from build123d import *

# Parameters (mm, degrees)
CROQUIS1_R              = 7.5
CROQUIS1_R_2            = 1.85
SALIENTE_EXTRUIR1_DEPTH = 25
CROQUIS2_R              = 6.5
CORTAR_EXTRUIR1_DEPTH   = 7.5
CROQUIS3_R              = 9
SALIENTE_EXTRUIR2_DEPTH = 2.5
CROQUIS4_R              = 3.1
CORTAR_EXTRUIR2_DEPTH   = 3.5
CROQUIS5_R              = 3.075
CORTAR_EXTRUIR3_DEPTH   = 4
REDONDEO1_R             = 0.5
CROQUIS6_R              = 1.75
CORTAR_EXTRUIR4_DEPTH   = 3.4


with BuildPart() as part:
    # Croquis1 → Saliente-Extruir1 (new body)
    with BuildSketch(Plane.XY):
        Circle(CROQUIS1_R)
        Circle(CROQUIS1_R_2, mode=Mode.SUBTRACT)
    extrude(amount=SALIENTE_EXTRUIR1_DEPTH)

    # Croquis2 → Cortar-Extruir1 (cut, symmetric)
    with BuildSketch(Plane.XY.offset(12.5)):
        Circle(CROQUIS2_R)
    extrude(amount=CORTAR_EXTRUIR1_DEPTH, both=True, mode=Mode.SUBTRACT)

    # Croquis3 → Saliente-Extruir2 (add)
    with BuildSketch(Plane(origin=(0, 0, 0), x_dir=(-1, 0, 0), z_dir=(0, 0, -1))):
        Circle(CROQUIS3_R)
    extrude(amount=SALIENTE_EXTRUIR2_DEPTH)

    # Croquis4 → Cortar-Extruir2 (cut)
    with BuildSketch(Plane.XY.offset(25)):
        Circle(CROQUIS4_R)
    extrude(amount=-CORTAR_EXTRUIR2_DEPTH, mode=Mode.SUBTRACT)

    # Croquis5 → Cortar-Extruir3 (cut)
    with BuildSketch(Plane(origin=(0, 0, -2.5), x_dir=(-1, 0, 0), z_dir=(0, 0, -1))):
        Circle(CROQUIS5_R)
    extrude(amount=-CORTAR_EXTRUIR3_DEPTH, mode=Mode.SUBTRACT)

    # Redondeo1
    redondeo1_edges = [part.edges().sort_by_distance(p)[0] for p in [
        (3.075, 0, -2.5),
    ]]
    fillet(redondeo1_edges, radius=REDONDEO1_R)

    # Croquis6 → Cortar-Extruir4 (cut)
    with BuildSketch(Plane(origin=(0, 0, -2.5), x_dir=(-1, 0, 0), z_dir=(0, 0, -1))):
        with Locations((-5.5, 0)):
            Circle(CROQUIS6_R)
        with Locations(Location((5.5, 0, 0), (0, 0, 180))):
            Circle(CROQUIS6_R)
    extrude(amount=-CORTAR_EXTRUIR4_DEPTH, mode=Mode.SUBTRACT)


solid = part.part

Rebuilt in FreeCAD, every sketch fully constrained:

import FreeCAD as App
import Part
import Sketcher
from FreeCAD import Vector
Q = App.Units.Quantity


def edges_at(feature, points):
    """Names of the edges that pass closest to the given points."""
    edges = feature.Shape.Edges
    near = lambda p: min(range(len(edges)), key=lambda i: edges[i].distToShape(Part.Vertex(*p))[0])
    return sorted({f"Edge{near(p) + 1}" for p in points})

doc = App.newDocument("Part")
params = doc.addObject("Spreadsheet::Sheet", "Params")
for row, (alias, value) in enumerate([
    ("sketch1_diameter", "15 mm"),
    ("sketch1_diameter2", "3.7 mm"),
    ("pad1_length", "25 mm"),
    ("sketch2_diameter", "13 mm"),
    ("pocket1_length", "15 mm"),
    ("sketch3_diameter", "18 mm"),
    ("pad2_length", "2.5 mm"),
    ("sketch4_diameter", "6.2 mm"),
    ("pocket2_length", "3.5 mm"),
    ("sketch5_diameter", "6.15 mm"),
    ("pocket3_length", "4 mm"),
    ("fillet_radius", "0.5 mm"),
    ("sketch6_diameter", "3.5 mm"),
    ("pocket4_length", "3.4 mm"),
], start=1):
    params.set(f"A{row}", alias)
    params.set(f"B{row}", "=" + value)
    params.setAlias(f"B{row}", alias)

body = doc.addObject("PartDesign::Body", "Body")

# Sketch on XY plane
sketch1 = body.newObject("Sketcher::SketchObject", "Sketch")
sketch1.AttachmentSupport = (doc.getObject("XY_Plane"), [""])
sketch1.MapMode = "FlatFace"
sketch1.addGeometry([
    Part.Circle(Vector(0, 0, 0), Vector(0, 0, 1), 7.5),
    Part.Circle(Vector(0, 0, 0), Vector(0, 0, 1), 1.9),
], False)
sketch1.addConstraint([
    Sketcher.Constraint("Coincident", 0, 3, -1, 1),
    Sketcher.Constraint("Coincident", 1, 3, -1, 1),
    Sketcher.Constraint("Diameter", 0, Q("15 mm")),
    Sketcher.Constraint("Diameter", 1, Q("3.7 mm")),
])
sketch1.setExpression("Constraints[2]", "Params.sketch1_diameter")
sketch1.setExpression("Constraints[3]", "Params.sketch1_diameter2")
pad1 = body.newObject("PartDesign::Pad", "Pad")
pad1.Profile = sketch1
pad1.setExpression("Length", "Params.pad1_length")

# Sketch on XY plane
sketch2 = body.newObject("Sketcher::SketchObject", "Sketch001")
sketch2.AttachmentSupport = (doc.getObject("XY_Plane"), [""])
sketch2.MapMode = "FlatFace"
sketch2.AttachmentOffset = App.Placement(Vector(0, 0, 12.5), App.Rotation())
sketch2.addGeometry(Part.Circle(Vector(0, 0, 0), Vector(0, 0, 1), 6), False)
sketch2.addConstraint([
    Sketcher.Constraint("Coincident", 0, 3, -1, 1),
    Sketcher.Constraint("Diameter", 0, Q("13 mm")),
])
sketch2.setExpression("Constraints[1]", "Params.sketch2_diameter")
pocket1 = body.newObject("PartDesign::Pocket", "Pocket")
pocket1.Profile = sketch2
pocket1.setExpression("Length", "Params.pocket1_length")
pocket1.Midplane = True

# Sketch on XY plane
sketch3 = body.newObject("Sketcher::SketchObject", "Sketch002")
sketch3.AttachmentSupport = (doc.getObject("XY_Plane"), [""])
sketch3.MapMode = "FlatFace"
sketch3.addGeometry(Part.Circle(Vector(0, 0, 0), Vector(0, 0, 1), 9), False)
sketch3.addConstraint([
    Sketcher.Constraint("Coincident", 0, 3, -1, 1),
    Sketcher.Constraint("Diameter", 0, Q("18 mm")),
])
sketch3.setExpression("Constraints[1]", "Params.sketch3_diameter")
pad2 = body.newObject("PartDesign::Pad", "Pad001")
pad2.Profile = sketch3
pad2.setExpression("Length", "Params.pad2_length")
pad2.Reversed = True

# Sketch on XY plane
sketch4 = body.newObject("Sketcher::SketchObject", "Sketch003")
sketch4.AttachmentSupport = (doc.getObject("XY_Plane"), [""])
sketch4.MapMode = "FlatFace"
sketch4.AttachmentOffset = App.Placement(Vector(0, 0, 25), App.Rotation())
sketch4.addGeometry(Part.Circle(Vector(0, 0, 0), Vector(0, 0, 1), 3.1), False)
sketch4.addConstraint([
    Sketcher.Constraint("Coincident", 0, 3, -1, 1),
    Sketcher.Constraint("Diameter", 0, Q("6.2 mm")),
])
sketch4.setExpression("Constraints[1]", "Params.sketch4_diameter")
pocket2 = body.newObject("PartDesign::Pocket", "Pocket001")
pocket2.Profile = sketch4
pocket2.setExpression("Length", "Params.pocket2_length")

# Sketch on XY plane
sketch5 = body.newObject("Sketcher::SketchObject", "Sketch004")
sketch5.AttachmentSupport = (doc.getObject("XY_Plane"), [""])
sketch5.MapMode = "FlatFace"
sketch5.AttachmentOffset = App.Placement(Vector(0, 0, -2.5), App.Rotation())
sketch5.addGeometry(Part.Circle(Vector(0, 0, 0), Vector(0, 0, 1), 3.1), False)
sketch5.addConstraint([
    Sketcher.Constraint("Coincident", 0, 3, -1, 1),
    Sketcher.Constraint("Diameter", 0, Q("6.15 mm")),
])
sketch5.setExpression("Constraints[1]", "Params.sketch5_diameter")
pocket3 = body.newObject("PartDesign::Pocket", "Pocket002")
pocket3.Profile = sketch5
pocket3.setExpression("Length", "Params.pocket3_length")
pocket3.Reversed = True
doc.recompute()

fillet = body.newObject("PartDesign::Fillet", "Fillet")
fillet.Base = (pocket3, edges_at(pocket3, [(3.075, 0, -2.5)]))
fillet.setExpression("Radius", "Params.fillet_radius")

# Sketch on XY plane
sketch6 = body.newObject("Sketcher::SketchObject", "Sketch005")
sketch6.AttachmentSupport = (doc.getObject("XY_Plane"), [""])
sketch6.MapMode = "FlatFace"
sketch6.AttachmentOffset = App.Placement(Vector(0, 0, -2.5), App.Rotation())
sketch6.addGeometry([
    Part.Circle(Vector(5.5, 0, 0), Vector(0, 0, 1), 1.8),
    Part.Circle(Vector(-5.5, 0, 0), Vector(0, 0, 1), 1.8),
], False)
sketch6.addConstraint([
    Sketcher.Constraint("Equal", 0, 1),
    Sketcher.Constraint("Symmetric", 0, 3, 1, 3, -1, 1),
    Sketcher.Constraint("PointOnObject", 0, 3, -1),
    Sketcher.Constraint("Diameter", 0, Q("3.5 mm")),
    Sketcher.Constraint("DistanceX", 1, 3, 0, 3, Q("11 mm")),
])
sketch6.setExpression("Constraints[3]", "Params.sketch6_diameter")
pocket4 = body.newObject("PartDesign::Pocket", "Pocket003")
pocket4.Profile = sketch6
pocket4.setExpression("Length", "Params.pocket4_length")
pocket4.Reversed = True

doc.recompute()
